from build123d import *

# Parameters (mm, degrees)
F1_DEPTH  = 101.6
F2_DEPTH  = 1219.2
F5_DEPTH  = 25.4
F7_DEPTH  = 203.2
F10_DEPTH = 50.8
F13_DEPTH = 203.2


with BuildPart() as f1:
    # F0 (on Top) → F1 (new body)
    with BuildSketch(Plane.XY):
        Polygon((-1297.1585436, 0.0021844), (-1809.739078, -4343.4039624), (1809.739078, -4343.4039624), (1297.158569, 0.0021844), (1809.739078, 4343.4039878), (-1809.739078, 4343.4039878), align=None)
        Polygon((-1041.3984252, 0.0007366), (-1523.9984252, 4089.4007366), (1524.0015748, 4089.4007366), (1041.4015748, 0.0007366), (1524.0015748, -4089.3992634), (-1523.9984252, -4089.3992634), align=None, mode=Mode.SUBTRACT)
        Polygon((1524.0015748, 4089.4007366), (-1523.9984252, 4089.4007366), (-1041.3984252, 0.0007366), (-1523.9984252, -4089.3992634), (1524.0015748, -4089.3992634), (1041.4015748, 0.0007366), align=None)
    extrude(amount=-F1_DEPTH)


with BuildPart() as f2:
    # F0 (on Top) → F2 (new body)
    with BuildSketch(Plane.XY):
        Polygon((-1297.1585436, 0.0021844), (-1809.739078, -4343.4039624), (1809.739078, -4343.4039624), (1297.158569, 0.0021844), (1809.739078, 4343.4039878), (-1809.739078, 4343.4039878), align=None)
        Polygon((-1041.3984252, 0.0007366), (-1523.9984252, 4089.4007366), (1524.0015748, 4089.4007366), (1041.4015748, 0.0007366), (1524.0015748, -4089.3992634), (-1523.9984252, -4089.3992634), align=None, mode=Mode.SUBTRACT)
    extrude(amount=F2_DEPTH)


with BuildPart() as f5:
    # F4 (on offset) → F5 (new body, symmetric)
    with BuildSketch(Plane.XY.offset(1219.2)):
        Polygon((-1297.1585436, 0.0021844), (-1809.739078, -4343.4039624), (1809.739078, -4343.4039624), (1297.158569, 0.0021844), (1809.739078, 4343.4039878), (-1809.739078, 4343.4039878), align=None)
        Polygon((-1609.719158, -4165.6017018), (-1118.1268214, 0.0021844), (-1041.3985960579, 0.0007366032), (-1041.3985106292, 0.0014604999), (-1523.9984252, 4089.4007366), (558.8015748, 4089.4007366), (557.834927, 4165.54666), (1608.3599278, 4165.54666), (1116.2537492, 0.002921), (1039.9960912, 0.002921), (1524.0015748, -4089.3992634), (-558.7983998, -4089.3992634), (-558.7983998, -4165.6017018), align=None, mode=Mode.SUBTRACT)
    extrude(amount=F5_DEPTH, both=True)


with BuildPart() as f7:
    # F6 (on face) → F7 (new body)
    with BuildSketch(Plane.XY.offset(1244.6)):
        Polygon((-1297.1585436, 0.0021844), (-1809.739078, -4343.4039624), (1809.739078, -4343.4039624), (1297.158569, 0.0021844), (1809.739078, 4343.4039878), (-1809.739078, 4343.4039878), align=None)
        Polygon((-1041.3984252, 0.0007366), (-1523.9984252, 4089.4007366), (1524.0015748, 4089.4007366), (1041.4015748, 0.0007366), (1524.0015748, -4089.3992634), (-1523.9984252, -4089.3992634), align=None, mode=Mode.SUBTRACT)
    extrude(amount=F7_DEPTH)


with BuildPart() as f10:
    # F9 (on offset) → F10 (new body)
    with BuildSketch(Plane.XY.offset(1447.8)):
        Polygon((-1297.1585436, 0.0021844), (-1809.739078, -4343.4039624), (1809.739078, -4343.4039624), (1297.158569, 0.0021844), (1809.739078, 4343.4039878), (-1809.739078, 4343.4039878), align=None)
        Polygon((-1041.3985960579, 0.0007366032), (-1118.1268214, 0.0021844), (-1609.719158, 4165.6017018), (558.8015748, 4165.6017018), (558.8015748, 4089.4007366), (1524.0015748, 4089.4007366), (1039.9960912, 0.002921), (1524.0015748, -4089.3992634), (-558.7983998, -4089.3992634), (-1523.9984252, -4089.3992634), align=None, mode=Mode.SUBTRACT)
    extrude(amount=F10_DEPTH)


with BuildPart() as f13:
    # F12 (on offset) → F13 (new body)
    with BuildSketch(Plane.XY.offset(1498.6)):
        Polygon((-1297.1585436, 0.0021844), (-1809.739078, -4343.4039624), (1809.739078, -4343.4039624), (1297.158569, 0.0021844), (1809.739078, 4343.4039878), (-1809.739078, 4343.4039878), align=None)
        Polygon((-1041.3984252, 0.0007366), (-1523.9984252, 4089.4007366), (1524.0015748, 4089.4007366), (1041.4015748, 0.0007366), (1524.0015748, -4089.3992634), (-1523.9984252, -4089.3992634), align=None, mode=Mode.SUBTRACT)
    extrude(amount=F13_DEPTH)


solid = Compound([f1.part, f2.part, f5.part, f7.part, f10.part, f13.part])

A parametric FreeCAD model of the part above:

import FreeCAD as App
import Part
import Sketcher

V = App.Vector
Q = App.Units.Quantity


def add_polygon(sketch, points):
    """Adds a closed chain of lines whose ends are joined by coincident constraints."""
    first, n = sketch.GeometryCount, len(points)
    for a, b in zip(points, points[1:] + points[:1]):
        sketch.addGeometry(Part.LineSegment(App.Vector(*a, 0), App.Vector(*b, 0)), False)
    for i in range(n):
        sketch.addConstraint(Sketcher.Constraint("Coincident", first + i, 2, first + (i + 1) % n, 1))

doc = App.newDocument("Part")
body = doc.addObject("PartDesign::Body", "Body")

sketch1 = body.newObject("Sketcher::SketchObject", "Sketch")
sketch1.AttachmentSupport = (doc.getObject("XY_Plane"), [""])
sketch1.MapMode = "FlatFace"
add_polygon(sketch1, [(-1297.158544, 0.002184), (-1809.739078, -4343.403962), (1809.739078, -4343.403962), (1297.158569, 0.002184), (1809.739078, 4343.403988), (-1809.739078, 4343.403988)])
sketch1.addConstraint(Sketcher.Constraint("Horizontal", 1))
sketch1.addConstraint(Sketcher.Constraint("Horizontal", 4))
sketch1.addConstraint(Sketcher.Constraint("Distance", 2, Q("4373.547271 mm")))
sketch1.addConstraint(Sketcher.Constraint("Distance", 5, Q("4373.542961 mm")))
sketch1.addConstraint(Sketcher.Constraint("DistanceX", 1, 1, 1, 2, Q("3619.478156 mm")))
sketch1.addConstraint(Sketcher.Constraint("DistanceX", 4, 2, 4, 1, Q("3619.478156 mm")))
sketch1.addConstraint(Sketcher.Constraint("DistanceX", 0, 2, -1, 1, Q("1809.739078 mm")))
sketch1.addConstraint(Sketcher.Constraint("DistanceX", -1, 1, 2, 2, Q("1297.158569 mm")))
sketch1.addConstraint(Sketcher.Constraint("DistanceX", -1, 1, 3, 2, Q("1809.739078 mm")))
sketch1.addConstraint(Sketcher.Constraint("DistanceY", 1, 2, 3, 2, Q("8686.80795 mm")))
sketch1.addConstraint(Sketcher.Constraint("DistanceX", 5, 2, 3, 2, Q("3106.897622 mm")))
sketch1.addConstraint(Sketcher.Constraint("DistanceY", 0, 2, -1, 1, Q("4343.403962 mm")))
pad1 = body.newObject("PartDesign::Pad", "Pad")
pad1.Profile = sketch1
pad1.Length = Q("4 in")
pad1.Reversed = True
body2 = doc.addObject("PartDesign::Body", "Body001")

sketch2 = body2.newObject("Sketcher::SketchObject", "Sketch001")
sketch2.AttachmentSupport = (doc.getObject("XY_Plane001"), [""])
sketch2.MapMode = "FlatFace"
add_polygon(sketch2, [(-1297.158544, 0.002184), (-1809.739078, -4343.403962), (1809.739078, -4343.403962), (1297.158569, 0.002184), (1809.739078, 4343.403988), (-1809.739078, 4343.403988)])
add_polygon(sketch2, [(-1523.998425, -4089.399263), (-1041.398425, 0.000737), (-1523.998425, 4089.400737), (1524.001575, 4089.400737), (1041.401575, 0.000737), (1524.001575, -4089.399263)])
sketch2.addConstraint(Sketcher.Constraint("Horizontal", 1))
sketch2.addConstraint(Sketcher.Constraint("Horizontal", 4))
sketch2.addConstraint(Sketcher.Constraint("Horizontal", 8))
sketch2.addConstraint(Sketcher.Constraint("Horizontal", 11))
sketch2.addConstraint(Sketcher.Constraint("DistanceX", 8, 1, 8, 2, Q("120 in")))
sketch2.addConstraint(Sketcher.Constraint("DistanceX", 11, 2, 11, 1, Q("120 in")))
sketch2.addConstraint(Sketcher.Constraint("DistanceX", 7, 2, 6, 2, Q("19 in")))
sketch2.addConstraint(Sketcher.Constraint("DistanceY", 6, 2, 7, 2, Q("161 in")))
sketch2.addConstraint(Sketcher.Constraint("DistanceX", 6, 2, 9, 2, Q("82 in")))
sketch2.addConstraint(Sketcher.Constraint("DistanceY", 9, 2, 8, 2, Q("161 in")))
sketch2.addConstraint(Sketcher.Constraint("DistanceX", 9, 2, 10, 2, Q("19 in")))
sketch2.addConstraint(Sketcher.Constraint("DistanceY", 10, 2, 9, 2, Q("161 in")))
sketch2.addConstraint(Sketcher.Constraint("DistanceY", 0, 2, 6, 2, Q("4343.404699 mm")))
sketch2.addConstraint(Sketcher.Constraint("Distance", 2, Q("4373.547271 mm")))
sketch2.addConstraint(Sketcher.Constraint("Distance", 5, Q("4373.542961 mm")))
sketch2.addConstraint(Sketcher.Constraint("DistanceX", 1, 1, 1, 2, Q("3619.478156 mm")))
sketch2.addConstraint(Sketcher.Constraint("DistanceX", 4, 2, 4, 1, Q("3619.478156 mm")))
sketch2.addConstraint(Sketcher.Constraint("DistanceX", 0, 2, -1, 1, Q("1809.739078 mm")))
sketch2.addConstraint(Sketcher.Constraint("DistanceX", -1, 1, 2, 2, Q("1297.158569 mm")))
sketch2.addConstraint(Sketcher.Constraint("DistanceX", -1, 1, 3, 2, Q("1809.739078 mm")))
sketch2.addConstraint(Sketcher.Constraint("DistanceY", 1, 2, 3, 2, Q("8686.80795 mm")))
sketch2.addConstraint(Sketcher.Constraint("DistanceX", 5, 2, 3, 2, Q("3106.897622 mm")))
sketch2.addConstraint(Sketcher.Constraint("DistanceX", 5, 2, 6, 2, Q("255.760118 mm")))
sketch2.addConstraint(Sketcher.Constraint("DistanceY", 0, 2, -1, 1, Q("4343.403962 mm")))
pad2 = body2.newObject("PartDesign::Pad", "Pad001")
pad2.Profile = sketch2
pad2.Length = Q("48 in")
body3 = doc.addObject("PartDesign::Body", "Body002")

sketch3 = body3.newObject("Sketcher::SketchObject", "Sketch002")
sketch3.AttachmentSupport = (doc.getObject("XY_Plane002"), [""])
sketch3.MapMode = "FlatFace"
sketch3.AttachmentOffset = App.Placement(V(0, 0, 48 * 25.4), App.Rotation())
add_polygon(sketch3, [(-1297.158544, 0.002184), (-1809.739078, -4343.403962), (1809.739078, -4343.403962), (1297.158569, 0.002184), (1809.739078, 4343.403988), (-1809.739078, 4343.403988)])
add_polygon(sketch3, [(-558.7984, -4165.601702), (-1609.719158, -4165.601702), (-1118.126821, 0.002184), (-1041.398596, 0.000737), (-1041.398511, 0.00146), (-1523.998425, 4089.400737), (558.801575, 4089.400737), (557.834927, 4165.54666), (1608.359928, 4165.54666), (1116.253749, 0.002921), (1039.996091, 0.002921), (1524.001575, -4089.399263), (-558.7984, -4089.399263)])
sketch3.addConstraint(Sketcher.Constraint("Horizontal", 1))
sketch3.addConstraint(Sketcher.Constraint("Horizontal", 4))
sketch3.addConstraint(Sketcher.Constraint("Horizontal", 6))
sketch3.addConstraint(Sketcher.Constraint("Horizontal", 11))
sketch3.addConstraint(Sketcher.Constraint("Horizontal", 13))
sketch3.addConstraint(Sketcher.Constraint("Horizontal", 15))
sketch3.addConstraint(Sketcher.Constraint("Horizontal", 17))
sketch3.addConstraint(Sketcher.Constraint("Vertical", 18))
sketch3.addConstraint(Sketcher.Constraint("DistanceX", 11, 1, 11, 2, Q("82 in")))
sketch3.addConstraint(Sketcher.Constraint("DistanceY", 17, 2, 8, 2, Q("161 in")))
sketch3.addConstraint(Sketcher.Constraint("DistanceX", 13, 1, 13, 2, Q("1050.525001 mm")))
sketch3.addConstraint(Sketcher.Constraint("DistanceY", -1, 1, 12, 2, Q("163.9979 in")))
sketch3.addConstraint(Sketcher.Constraint("DistanceX", 0, 2, 6, 2, Q("7.8748 in")))
sketch3.addConstraint(Sketcher.Constraint("DistanceX", 4, 2, 6, 2, Q("7.8748 in")))
sketch3.addConstraint(Sketcher.Constraint("DistanceX", 6, 2, 6, 1, Q("1050.920758 mm")))
sketch3.addConstraint(Sketcher.Constraint("DistanceY", 18, 2, 18, 1, Q("76.202438 mm")))
sketch3.addConstraint(Sketcher.Constraint("DistanceY", 6, 2, -1, 1, Q("4165.601702 mm")))
sketch3.addConstraint(Sketcher.Constraint("DistanceX", 17, 2, -1, 1, Q("558.7984 mm")))
sketch3.addConstraint(Sketcher.Constraint("DistanceX", 9, 2, 15, 2, Q("2081.394602 mm")))
sketch3.addConstraint(Sketcher.Constraint("DistanceY", 1, 2, 16, 2, Q("254.004699 mm")))
sketch3.addConstraint(Sketcher.Constraint("Distance", 2, Q("4373.547271 mm")))
sketch3.addConstraint(Sketcher.Constraint("Distance", 5, Q("4373.542961 mm")))
sketch3.addConstraint(Sketcher.Constraint("Distance", 7, Q("4194.510551 mm")))
sketch3.addConstraint(Sketcher.Constraint("Distance", 9, Q("0.000729 mm")))
sketch3.addConstraint(Sketcher.Constraint("Distance", 12, Q("76.152059 mm")))
sketch3.addConstraint(Sketcher.Constraint("Distance", 14, Q("4194.511072 mm")))
sketch3.addConstraint(Sketcher.Constraint("DistanceX", 1, 1, 1, 2, Q("3619.478156 mm")))
sketch3.addConstraint(Sketcher.Constraint("DistanceX", 4, 2, 4, 1, Q("3619.478156 mm")))
sketch3.addConstraint(Sketcher.Constraint("DistanceX", 15, 2, 15, 1, Q("76.257658 mm")))
sketch3.addConstraint(Sketcher.Constraint("DistanceX", 17, 2, 17, 1, Q("2082.799975 mm")))
sketch3.addConstraint(Sketcher.Constraint("DistanceX", -1, 1, 2, 2, Q("1297.158569 mm")))
sketch3.addConstraint(Sketcher.Constraint("DistanceX", 7, 2, -1, 1, Q("1118.126821 mm")))
sketch3.addConstraint(Sketcher.Constraint("DistanceX", 9, 2, -1, 1, Q("1041.398511 mm")))
sketch3.addConstraint(Sketcher.Constraint("DistanceY", -1, 1, 9, 2, Q("0.00146 mm")))
sketch3.addConstraint(Sketcher.Constraint("DistanceY", -1, 1, 14, 2, Q("0.002921 mm")))
sketch3.addConstraint(Sketcher.Constraint("DistanceY", 1, 2, 3, 2, Q("8686.80795 mm")))
sketch3.addConstraint(Sketcher.Constraint("DistanceX", 5, 2, 3, 2, Q("3106.897622 mm")))
sketch3.addConstraint(Sketcher.Constraint("DistanceY", 10, 2, 4, 2, Q("254.003251 mm")))
pad3 = body3.newObject("PartDesign::Pad", "Pad002")
pad3.Profile = sketch3
pad3.Length = Q("2 in")
pad3.Midplane = True
body4 = doc.addObject("PartDesign::Body", "Body003")

sketch4 = body4.newObject("Sketcher::SketchObject", "Sketch003")
sketch4.AttachmentSupport = (doc.getObject("XY_Plane003"), [""])
sketch4.MapMode = "FlatFace"
sketch4.AttachmentOffset = App.Placement(V(0, 0, 49 * 25.4), App.Rotation())
add_polygon(sketch4, [(-1297.158544, 0.002184), (-1809.739078, -4343.403962), (1809.739078, -4343.403962), (1297.158569, 0.002184), (1809.739078, 4343.403988), (-1809.739078, 4343.403988)])
add_polygon(sketch4, [(-1523.998425, -4089.399263), (-1041.398425, 0.000737), (-1523.998425, 4089.400737), (1524.001575, 4089.400737), (1041.401575, 0.000737), (1524.001575, -4089.399263)])
sketch4.addConstraint(Sketcher.Constraint("Horizontal", 1))
sketch4.addConstraint(Sketcher.Constraint("Horizontal", 4))
sketch4.addConstraint(Sketcher.Constraint("Horizontal", 8))
sketch4.addConstraint(Sketcher.Constraint("Horizontal", 11))
sketch4.addConstraint(Sketcher.Constraint("DistanceX", 8, 1, 8, 2, Q("120 in")))
sketch4.addConstraint(Sketcher.Constraint("DistanceX", 11, 2, 11, 1, Q("120 in")))
sketch4.addConstraint(Sketcher.Constraint("DistanceX", 7, 2, 6, 2, Q("19 in")))
sketch4.addConstraint(Sketcher.Constraint("DistanceY", 6, 2, 7, 2, Q("161 in")))
sketch4.addConstraint(Sketcher.Constraint("DistanceX", 6, 2, 9, 2, Q("82 in")))
sketch4.addConstraint(Sketcher.Constraint("DistanceY", 9, 2, 8, 2, Q("161 in")))
sketch4.addConstraint(Sketcher.Constraint("DistanceX", 9, 2, 10, 2, Q("19 in")))
sketch4.addConstraint(Sketcher.Constraint("DistanceY", 10, 2, 9, 2, Q("161 in")))
sketch4.addConstraint(Sketcher.Constraint("DistanceY", 0, 2, 6, 2, Q("4343.404699 mm")))
sketch4.addConstraint(Sketcher.Constraint("Distance", 2, Q("4373.547271 mm")))
sketch4.addConstraint(Sketcher.Constraint("Distance", 5, Q("4373.542961 mm")))
sketch4.addConstraint(Sketcher.Constraint("DistanceX", 1, 1, 1, 2, Q("3619.478156 mm")))
sketch4.addConstraint(Sketcher.Constraint("DistanceX", 4, 2, 4, 1, Q("3619.478156 mm")))
sketch4.addConstraint(Sketcher.Constraint("DistanceX", 0, 2, -1, 1, Q("1809.739078 mm")))
sketch4.addConstraint(Sketcher.Constraint("DistanceX", -1, 1, 2, 2, Q("1297.158569 mm")))
sketch4.addConstraint(Sketcher.Constraint("DistanceX", -1, 1, 3, 2, Q("1809.739078 mm")))
sketch4.addConstraint(Sketcher.Constraint("DistanceY", 1, 2, 3, 2, Q("8686.80795 mm")))
sketch4.addConstraint(Sketcher.Constraint("DistanceX", 5, 2, 3, 2, Q("3106.897622 mm")))
sketch4.addConstraint(Sketcher.Constraint("DistanceX", 5, 2, 6, 2, Q("255.760118 mm")))
sketch4.addConstraint(Sketcher.Constraint("DistanceY", 0, 2, -1, 1, Q("4343.403962 mm")))
pad4 = body4.newObject("PartDesign::Pad", "Pad003")
pad4.Profile = sketch4
pad4.Length = Q("8 in")
body5 = doc.addObject("PartDesign::Body", "Body004")

sketch5 = body5.newObject("Sketcher::SketchObject", "Sketch004")
sketch5.AttachmentSupport = (doc.getObject("XY_Plane004"), [""])
sketch5.MapMode = "FlatFace"
sketch5.AttachmentOffset = App.Placement(V(0, 0, 57 * 25.4), App.Rotation())
add_polygon(sketch5, [(-1297.158544, 0.002184), (-1809.739078, -4343.403962), (1809.739078, -4343.403962), (1297.158569, 0.002184), (1809.739078, 4343.403988), (-1809.739078, 4343.403988)])
add_polygon(sketch5, [(-1523.998425, -4089.399263), (-1041.398596, 0.000737), (-1118.126821, 0.002184), (-1609.719158, 4165.601702), (558.801575, 4165.601702), (558.801575, 4089.400737), (1524.001575, 4089.400737), (1039.996091, 0.002921), (1524.001575, -4089.399263)])
sketch5.addConstraint(Sketcher.Constraint("Horizontal", 1))
sketch5.addConstraint(Sketcher.Constraint("Horizontal", 4))
sketch5.addConstraint(Sketcher.Constraint("Horizontal", 9))
sketch5.addConstraint(Sketcher.Constraint("Vertical", 10))
sketch5.addConstraint(Sketcher.Constraint("Horizontal", 11))
sketch5.addConstraint(Sketcher.Constraint("Horizontal", 14))
sketch5.addConstraint(Sketcher.Constraint("DistanceX", 11, 1, 11, 2, Q("38 in")))
sketch5.addConstraint(Sketcher.Constraint("DistanceX", 14, 2, 14, 1, Q("120 in")))
sketch5.addConstraint(Sketcher.Constraint("DistanceY", 13, 2, 6, 2, Q("161 in")))
sketch5.addConstraint(Sketcher.Constraint("DistanceX", 4, 2, 8, 2, Q("7.8748 in")))
sketch5.addConstraint(Sketcher.Constraint("DistanceY", -1, 1, 8, 2, Q("4165.601702 mm")))
sketch5.addConstraint(Sketcher.Constraint("DistanceY", 0, 2, 6, 2, Q("4343.404699 mm")))
sketch5.addConstraint(Sketcher.Constraint("Distance", 2, Q("4373.547271 mm")))
sketch5.addConstraint(Sketcher.Constraint("Distance", 5, Q("4373.542961 mm")))
sketch5.addConstraint(Sketcher.Constraint("DistanceX", 1, 1, 1, 2, Q("3619.478156 mm")))
sketch5.addConstraint(Sketcher.Constraint("DistanceX", 4, 2, 4, 1, Q("3619.478156 mm")))
sketch5.addConstraint(Sketcher.Constraint("DistanceX", 9, 1, 9, 2, Q("2168.520733 mm")))
sketch5.addConstraint(Sketcher.Constraint("DistanceY", 10, 2, 10, 1, Q("76.200965 mm")))
sketch5.addConstraint(Sketcher.Constraint("DistanceX", 0, 2, -1, 1, Q("1809.739078 mm")))
sketch5.addConstraint(Sketcher.Constraint("DistanceX", -1, 1, 2, 2, Q("1297.158569 mm")))
sketch5.addConstraint(Sketcher.Constraint("DistanceX", -1, 1, 3, 2, Q("1809.739078 mm")))
sketch5.addConstraint(Sketcher.Constraint("DistanceX", 7, 2, -1, 1, Q("1118.126821 mm")))
sketch5.addConstraint(Sketcher.Constraint("DistanceX", -1, 1, 12, 2, Q("1039.996091 mm")))
sketch5.addConstraint(Sketcher.Constraint("DistanceY", -1, 1, 12, 2, Q("0.002921 mm")))
sketch5.addConstraint(Sketcher.Constraint("DistanceY", 1, 2, 3, 2, Q("8686.80795 mm")))
sketch5.addConstraint(Sketcher.Constraint("DistanceX", 5, 2, 3, 2, Q("3106.897622 mm")))
sketch5.addConstraint(Sketcher.Constraint("DistanceX", 4, 2, 6, 2, Q("768.340482 mm")))
sketch5.addConstraint(Sketcher.Constraint("DistanceY", 10, 2, 3, 2, Q("254.003251 mm")))
sketch5.addConstraint(Sketcher.Constraint("DistanceX", 6, 2, 13, 2, Q("2565.400171 mm")))
sketch5.addConstraint(Sketcher.Constraint("Distance", 8, Q("4194.506212 mm")))
pad5 = body5.newObject("PartDesign::Pad", "Pad004")
pad5.Profile = sketch5
pad5.Length = Q("2 in")
body6 = doc.addObject("PartDesign::Body", "Body005")

sketch6 = body6.newObject("Sketcher::SketchObject", "Sketch005")
sketch6.AttachmentSupport = (doc.getObject("XY_Plane005"), [""])
sketch6.MapMode = "FlatFace"
sketch6.AttachmentOffset = App.Placement(V(0, 0, 59 * 25.4), App.Rotation())
add_polygon(sketch6, [(-1297.158544, 0.002184), (-1809.739078, -4343.403962), (1809.739078, -4343.403962), (1297.158569, 0.002184), (1809.739078, 4343.403988), (-1809.739078, 4343.403988)])
add_polygon(sketch6, [(-1523.998425, -4089.399263), (-1041.398425, 0.000737), (-1523.998425, 4089.400737), (1524.001575, 4089.400737), (1041.401575, 0.000737), (1524.001575, -4089.399263)])
sketch6.addConstraint(Sketcher.Constraint("Horizontal", 1))
sketch6.addConstraint(Sketcher.Constraint("Horizontal", 4))
sketch6.addConstraint(Sketcher.Constraint("Horizontal", 8))
sketch6.addConstraint(Sketcher.Constraint("Horizontal", 11))
sketch6.addConstraint(Sketcher.Constraint("DistanceX", 8, 1, 8, 2, Q("120 in")))
sketch6.addConstraint(Sketcher.Constraint("DistanceX", 11, 2, 11, 1, Q("120 in")))
sketch6.addConstraint(Sketcher.Constraint("DistanceX", 7, 2, 6, 2, Q("19 in")))
sketch6.addConstraint(Sketcher.Constraint("DistanceY", 6, 2, 7, 2, Q("161 in")))
sketch6.addConstraint(Sketcher.Constraint("DistanceX", 6, 2, 9, 2, Q("82 in")))
sketch6.addConstraint(Sketcher.Constraint("DistanceY", 9, 2, 8, 2, Q("161 in")))
sketch6.addConstraint(Sketcher.Constraint("DistanceX", 9, 2, 10, 2, Q("19 in")))
sketch6.addConstraint(Sketcher.Constraint("DistanceY", 10, 2, 9, 2, Q("161 in")))
sketch6.addConstraint(Sketcher.Constraint("DistanceY", 0, 2, 6, 2, Q("4343.404699 mm")))
sketch6.addConstraint(Sketcher.Constraint("Distance", 2, Q("4373.547271 mm")))
sketch6.addConstraint(Sketcher.Constraint("Distance", 5, Q("4373.542961 mm")))
sketch6.addConstraint(Sketcher.Constraint("DistanceX", 1, 1, 1, 2, Q("3619.478156 mm")))
sketch6.addConstraint(Sketcher.Constraint("DistanceX", 4, 2, 4, 1, Q("3619.478156 mm")))
sketch6.addConstraint(Sketcher.Constraint("DistanceX", 0, 2, -1, 1, Q("1809.739078 mm")))
sketch6.addConstraint(Sketcher.Constraint("DistanceX", -1, 1, 2, 2, Q("1297.158569 mm")))
sketch6.addConstraint(Sketcher.Constraint("DistanceX", -1, 1, 3, 2, Q("1809.739078 mm")))
sketch6.addConstraint(Sketcher.Constraint("DistanceY", 1, 2, 3, 2, Q("8686.80795 mm")))
sketch6.addConstraint(Sketcher.Constraint("DistanceX", 5, 2, 3, 2, Q("3106.897622 mm")))
sketch6.addConstraint(Sketcher.Constraint("DistanceX", 5, 2, 6, 2, Q("255.760118 mm")))
sketch6.addConstraint(Sketcher.Constraint("DistanceY", 0, 2, -1, 1, Q("4343.403962 mm")))
pad6 = body6.newObject("PartDesign::Pad", "Pad005")
pad6.Profile = sketch6
pad6.Length = Q("8 in")

doc.recompute()
